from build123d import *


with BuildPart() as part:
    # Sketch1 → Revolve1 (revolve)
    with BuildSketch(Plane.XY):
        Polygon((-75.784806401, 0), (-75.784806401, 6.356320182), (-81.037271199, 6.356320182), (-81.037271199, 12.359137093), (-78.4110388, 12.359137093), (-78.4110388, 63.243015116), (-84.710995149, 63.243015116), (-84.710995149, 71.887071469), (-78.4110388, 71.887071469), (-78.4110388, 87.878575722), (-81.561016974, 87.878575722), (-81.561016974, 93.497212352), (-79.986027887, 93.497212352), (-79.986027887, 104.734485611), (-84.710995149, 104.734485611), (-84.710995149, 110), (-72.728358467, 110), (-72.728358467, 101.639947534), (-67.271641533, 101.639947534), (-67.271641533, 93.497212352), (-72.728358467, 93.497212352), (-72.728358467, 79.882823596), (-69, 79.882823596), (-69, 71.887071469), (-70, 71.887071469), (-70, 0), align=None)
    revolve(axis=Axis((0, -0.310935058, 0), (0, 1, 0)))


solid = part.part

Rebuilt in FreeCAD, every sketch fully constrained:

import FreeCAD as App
import Part
import Sketcher

V = App.Vector
Q = App.Units.Quantity


def add_polygon(sketch, points):
    """Adds a closed chain of lines whose ends are joined by coincident constraints."""
    first, n = sketch.GeometryCount, len(points)
    for a, b in zip(points, points[1:] + points[:1]):
        sketch.addGeometry(Part.LineSegment(App.Vector(*a, 0), App.Vector(*b, 0)), False)
    for i in range(n):
        sketch.addConstraint(Sketcher.Constraint("Coincident", first + i, 2, first + (i + 1) % n, 1))

doc = App.newDocument("Part")
body = doc.addObject("PartDesign::Body", "Body")

sketch1 = body.newObject("Sketcher::SketchObject", "Sketch")
sketch1.AttachmentSupport = (doc.getObject("XY_Plane"), [""])
sketch1.MapMode = "FlatFace"
add_polygon(sketch1, [(-75.8, 6.4), (-75.8, 0), (-70, 0), (-70, 71.9), (-69, 71.9), (-69, 79.9), (-72.7, 79.9), (-72.7, 93.5), (-67.3, 93.5), (-67.3, 101.6), (-72.7, 101.6), (-72.7, 110), (-84.7, 110), (-84.7, 104.7), (-80, 104.7), (-80, 93.5), (-81.6, 93.5), (-81.6, 87.9), (-78.4, 87.9), (-78.4, 71.9), (-84.7, 71.9), (-84.7, 63.2), (-78.4, 63.2), (-78.4, 12.4), (-81, 12.4), (-81, 6.4)])
sketch1.addConstraint(Sketcher.Constraint("Vertical", 0))
sketch1.addConstraint(Sketcher.Constraint("Horizontal", 1))
sketch1.addConstraint(Sketcher.Constraint("Vertical", 2))
sketch1.addConstraint(Sketcher.Constraint("Horizontal", 3))
sketch1.addConstraint(Sketcher.Constraint("Vertical", 4))
sketch1.addConstraint(Sketcher.Constraint("Horizontal", 5))
sketch1.addConstraint(Sketcher.Constraint("Vertical", 6))
sketch1.addConstraint(Sketcher.Constraint("Horizontal", 7))
sketch1.addConstraint(Sketcher.Constraint("Vertical", 8))
sketch1.addConstraint(Sketcher.Constraint("Horizontal", 9))
sketch1.addConstraint(Sketcher.Constraint("Vertical", 10))
sketch1.addConstraint(Sketcher.Constraint("Horizontal", 11))
sketch1.addConstraint(Sketcher.Constraint("Vertical", 12))
sketch1.addConstraint(Sketcher.Constraint("Horizontal", 13))
sketch1.addConstraint(Sketcher.Constraint("Vertical", 14))
sketch1.addConstraint(Sketcher.Constraint("Horizontal", 15))
sketch1.addConstraint(Sketcher.Constraint("Vertical", 16))
sketch1.addConstraint(Sketcher.Constraint("Horizontal", 17))
sketch1.addConstraint(Sketcher.Constraint("Vertical", 18))
sketch1.addConstraint(Sketcher.Constraint("Horizontal", 19))
sketch1.addConstraint(Sketcher.Constraint("Vertical", 20))
sketch1.addConstraint(Sketcher.Constraint("Horizontal", 21))
sketch1.addConstraint(Sketcher.Constraint("Vertical", 22))
sketch1.addConstraint(Sketcher.Constraint("Horizontal", 23))
sketch1.addConstraint(Sketcher.Constraint("Vertical", 24))
sketch1.addConstraint(Sketcher.Constraint("Horizontal", 25))
sketch1.addConstraint(Sketcher.Constraint("PointOnObject", 0, 2, -1))
sketch1.addConstraint(Sketcher.Constraint("Horizontal", 7, 2, 14, 2))
sketch1.addConstraint(Sketcher.Constraint("Horizontal", 3, 2, 18, 2))
sketch1.addConstraint(Sketcher.Constraint("Vertical", 6, 2, 9, 2))
sketch1.addConstraint(Sketcher.Constraint("Vertical", 12, 2, 19, 2))
sketch1.addConstraint(Sketcher.Constraint("Vertical", 18, 2, 21, 2))
sketch1.addConstraint(Sketcher.Constraint("DistanceX", 3, 1, 3, 2, Q("1 mm")))
sketch1.addConstraint(Sketcher.Constraint("DistanceX", 1, 2, -1, 1, Q("70 mm")))
sketch1.addConstraint(Sketcher.Constraint("DistanceY", -1, 1, 10, 2, Q("110 mm")))
sketch1.addConstraint(Sketcher.Constraint("DistanceX", 5, 2, 5, 1, Q("3.728358 mm")))
sketch1.addConstraint(Sketcher.Constraint("DistanceX", 15, 2, 15, 1, Q("1.574989 mm")))
sketch1.addConstraint(Sketcher.Constraint("DistanceX", 17, 1, 17, 2, Q("3.149978 mm")))
sketch1.addConstraint(Sketcher.Constraint("DistanceY", 0, 2, 0, 1, Q("6.35632 mm")))
sketch1.addConstraint(Sketcher.Constraint("DistanceY", 2, 1, 2, 2, Q("71.887071 mm")))
sketch1.addConstraint(Sketcher.Constraint("DistanceY", 6, 1, 6, 2, Q("13.614389 mm")))
sketch1.addConstraint(Sketcher.Constraint("DistanceY", 22, 2, 22, 1, Q("50.883878 mm")))
sketch1.addConstraint(Sketcher.Constraint("DistanceX", 1, 1, 1, 2, Q("5.784806 mm")))
sketch1.addConstraint(Sketcher.Constraint("DistanceX", 7, 1, 7, 2, Q("5.456717 mm")))
sketch1.addConstraint(Sketcher.Constraint("DistanceX", 11, 2, 11, 1, Q("11.982637 mm")))
sketch1.addConstraint(Sketcher.Constraint("DistanceX", 13, 1, 13, 2, Q("4.724967 mm")))
sketch1.addConstraint(Sketcher.Constraint("DistanceX", 23, 2, 23, 1, Q("2.626232 mm")))
sketch1.addConstraint(Sketcher.Constraint("DistanceY", 4, 1, 4, 2, Q("7.995752 mm")))
sketch1.addConstraint(Sketcher.Constraint("DistanceY", 8, 1, 8, 2, Q("8.142735 mm")))
sketch1.addConstraint(Sketcher.Constraint("DistanceY", 12, 2, 12, 1, Q("5.265514 mm")))
sketch1.addConstraint(Sketcher.Constraint("DistanceY", 16, 2, 16, 1, Q("5.618637 mm")))
sketch1.addConstraint(Sketcher.Constraint("DistanceY", 20, 2, 20, 1, Q("8.644056 mm")))
revolution = body.newObject("PartDesign::Revolution", "Revolution")
revolution.Profile = sketch1
revolution.ReferenceAxis = (sketch1, ["V_Axis"])
revolution.Angle = 360

doc.recompute()
